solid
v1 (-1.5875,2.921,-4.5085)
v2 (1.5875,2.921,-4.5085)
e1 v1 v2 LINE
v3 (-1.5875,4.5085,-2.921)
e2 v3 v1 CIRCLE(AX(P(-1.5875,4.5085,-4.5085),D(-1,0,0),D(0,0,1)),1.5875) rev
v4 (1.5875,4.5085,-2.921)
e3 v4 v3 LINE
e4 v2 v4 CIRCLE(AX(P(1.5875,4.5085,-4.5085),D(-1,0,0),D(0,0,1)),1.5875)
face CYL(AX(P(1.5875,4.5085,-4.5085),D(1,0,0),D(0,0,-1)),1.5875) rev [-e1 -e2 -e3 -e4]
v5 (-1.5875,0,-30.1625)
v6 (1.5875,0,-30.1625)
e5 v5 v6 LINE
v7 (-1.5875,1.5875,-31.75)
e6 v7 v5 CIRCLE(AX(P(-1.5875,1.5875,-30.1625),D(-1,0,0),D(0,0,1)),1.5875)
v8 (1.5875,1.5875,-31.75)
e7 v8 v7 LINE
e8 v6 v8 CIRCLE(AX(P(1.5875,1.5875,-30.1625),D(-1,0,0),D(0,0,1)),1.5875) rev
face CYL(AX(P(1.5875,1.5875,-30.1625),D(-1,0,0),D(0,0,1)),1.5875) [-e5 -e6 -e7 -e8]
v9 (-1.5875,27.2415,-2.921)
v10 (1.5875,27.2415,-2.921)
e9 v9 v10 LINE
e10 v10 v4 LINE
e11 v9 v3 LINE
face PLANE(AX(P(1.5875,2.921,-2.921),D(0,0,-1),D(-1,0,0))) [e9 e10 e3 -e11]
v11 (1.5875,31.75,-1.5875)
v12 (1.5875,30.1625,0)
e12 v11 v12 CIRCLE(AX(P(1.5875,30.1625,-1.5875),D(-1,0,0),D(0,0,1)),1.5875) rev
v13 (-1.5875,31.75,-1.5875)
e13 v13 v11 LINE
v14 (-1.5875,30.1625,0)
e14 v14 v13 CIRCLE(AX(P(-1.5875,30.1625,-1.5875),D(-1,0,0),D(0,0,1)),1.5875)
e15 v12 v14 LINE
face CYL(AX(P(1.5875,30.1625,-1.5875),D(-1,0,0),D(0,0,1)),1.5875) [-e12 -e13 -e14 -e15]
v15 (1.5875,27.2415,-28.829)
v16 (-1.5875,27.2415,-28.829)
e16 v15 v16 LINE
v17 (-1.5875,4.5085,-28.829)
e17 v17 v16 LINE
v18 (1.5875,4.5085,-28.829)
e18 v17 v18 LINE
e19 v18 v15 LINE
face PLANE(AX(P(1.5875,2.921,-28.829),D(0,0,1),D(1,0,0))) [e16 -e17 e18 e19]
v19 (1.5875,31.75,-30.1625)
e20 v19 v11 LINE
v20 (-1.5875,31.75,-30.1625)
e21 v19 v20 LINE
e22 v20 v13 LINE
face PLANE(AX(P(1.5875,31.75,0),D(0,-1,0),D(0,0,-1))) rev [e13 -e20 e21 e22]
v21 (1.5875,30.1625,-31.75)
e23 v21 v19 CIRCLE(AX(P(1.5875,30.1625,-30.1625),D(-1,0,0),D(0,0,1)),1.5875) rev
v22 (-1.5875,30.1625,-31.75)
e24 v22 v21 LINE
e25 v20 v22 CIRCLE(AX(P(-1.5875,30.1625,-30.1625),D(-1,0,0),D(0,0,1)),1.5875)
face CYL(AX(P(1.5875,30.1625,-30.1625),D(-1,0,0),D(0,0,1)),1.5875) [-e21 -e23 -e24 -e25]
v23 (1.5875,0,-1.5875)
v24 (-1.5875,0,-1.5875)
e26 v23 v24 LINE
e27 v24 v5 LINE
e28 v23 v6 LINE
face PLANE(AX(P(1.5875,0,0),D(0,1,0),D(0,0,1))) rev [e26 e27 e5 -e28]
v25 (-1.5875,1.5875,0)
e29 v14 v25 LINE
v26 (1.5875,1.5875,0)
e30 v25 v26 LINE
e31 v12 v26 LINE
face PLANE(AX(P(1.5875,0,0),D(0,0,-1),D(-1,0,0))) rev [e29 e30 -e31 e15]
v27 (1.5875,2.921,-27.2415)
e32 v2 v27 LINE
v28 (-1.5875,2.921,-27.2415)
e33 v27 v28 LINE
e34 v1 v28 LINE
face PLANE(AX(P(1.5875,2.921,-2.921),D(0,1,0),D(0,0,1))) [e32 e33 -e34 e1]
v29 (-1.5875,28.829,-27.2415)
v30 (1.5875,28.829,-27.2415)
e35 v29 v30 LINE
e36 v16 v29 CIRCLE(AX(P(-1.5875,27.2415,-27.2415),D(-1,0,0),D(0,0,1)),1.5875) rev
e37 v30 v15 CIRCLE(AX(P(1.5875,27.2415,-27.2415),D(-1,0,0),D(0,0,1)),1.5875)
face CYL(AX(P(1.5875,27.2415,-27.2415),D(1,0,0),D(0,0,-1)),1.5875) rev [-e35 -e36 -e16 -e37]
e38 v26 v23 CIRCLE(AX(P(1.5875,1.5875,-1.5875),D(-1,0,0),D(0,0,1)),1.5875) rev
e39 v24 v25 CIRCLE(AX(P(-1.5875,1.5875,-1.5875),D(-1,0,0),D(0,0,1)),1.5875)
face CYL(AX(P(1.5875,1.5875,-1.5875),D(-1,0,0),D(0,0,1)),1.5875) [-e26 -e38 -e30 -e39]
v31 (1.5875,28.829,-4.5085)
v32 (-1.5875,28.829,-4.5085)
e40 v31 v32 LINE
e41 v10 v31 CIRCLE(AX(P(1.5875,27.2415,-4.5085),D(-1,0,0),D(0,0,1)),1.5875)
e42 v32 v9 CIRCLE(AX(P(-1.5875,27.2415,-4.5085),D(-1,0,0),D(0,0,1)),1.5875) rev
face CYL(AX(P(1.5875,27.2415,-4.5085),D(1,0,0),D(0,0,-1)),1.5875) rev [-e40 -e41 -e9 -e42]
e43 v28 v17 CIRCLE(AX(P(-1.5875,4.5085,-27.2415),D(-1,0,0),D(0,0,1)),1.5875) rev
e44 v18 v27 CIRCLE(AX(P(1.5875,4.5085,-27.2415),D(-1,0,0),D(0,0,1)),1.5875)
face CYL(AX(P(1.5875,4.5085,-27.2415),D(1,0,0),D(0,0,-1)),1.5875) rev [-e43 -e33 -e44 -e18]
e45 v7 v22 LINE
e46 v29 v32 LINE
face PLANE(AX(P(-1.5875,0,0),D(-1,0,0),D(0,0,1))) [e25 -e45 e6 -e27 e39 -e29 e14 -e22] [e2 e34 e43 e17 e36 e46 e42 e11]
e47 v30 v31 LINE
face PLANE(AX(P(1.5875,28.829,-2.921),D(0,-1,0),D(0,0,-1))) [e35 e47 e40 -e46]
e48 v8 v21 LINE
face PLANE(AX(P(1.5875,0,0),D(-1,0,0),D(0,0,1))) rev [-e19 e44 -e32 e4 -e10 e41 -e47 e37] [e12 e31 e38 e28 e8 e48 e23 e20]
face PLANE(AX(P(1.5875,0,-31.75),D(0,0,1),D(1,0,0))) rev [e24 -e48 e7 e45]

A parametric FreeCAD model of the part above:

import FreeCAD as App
import Part
import Sketcher

V = App.Vector
Q = App.Units.Quantity


def edges_at(feature, points):
    """Names of the edges that pass closest to the given points."""
    edges = feature.Shape.Edges
    near = lambda p: min(range(len(edges)), key=lambda i: edges[i].distToShape(Part.Vertex(*p))[0])
    return sorted({f"Edge{near(p) + 1}" for p in points})

doc = App.newDocument("Part")
params = doc.addObject("Spreadsheet::Sheet", "Params")
for row, (alias, value) in enumerate([
    ("sketch1_width", "1.25 in"),
    ("sketch1_width2", "1.02 in"),
    ("pad1_length", "0.125 in"),
    ("fillet_radius", "0.0625 in"),
], start=1):
    params.set(f"A{row}", alias)
    params.set(f"B{row}", "=" + value)
    params.setAlias(f"B{row}", alias)

body = doc.addObject("PartDesign::Body", "Body")

# Sketch on YZ plane
sketch1 = body.newObject("Sketcher::SketchObject", "Sketch")
sketch1.AttachmentSupport = (doc.getObject("YZ_Plane"), [""])
sketch1.MapMode = "FlatFace"
sketch1.addGeometry([
    Part.LineSegment(V(32, 0, 0), V(0, 0, 0)),  # 0
    Part.LineSegment(V(0, 0, 0), V(0, -32, 0)),  # 1
    Part.LineSegment(V(0, -32, 0), V(32, -32, 0)),  # 2
    Part.LineSegment(V(32, -32, 0), V(32, 0, 0)),  # 3
    Part.LineSegment(V(3, -29, 0), V(3, -3, 0)),  # 4
    Part.LineSegment(V(3, -3, 0), V(29, -3, 0)),  # 5
    Part.LineSegment(V(29, -3, 0), V(29, -29, 0)),  # 6
    Part.LineSegment(V(29, -29, 0), V(3, -29, 0)),  # 7
], False)
sketch1.addConstraint([
    Sketcher.Constraint("Coincident", 0, 2, 1, 1),
    Sketcher.Constraint("Coincident", 1, 2, 2, 1),
    Sketcher.Constraint("Coincident", 2, 2, 3, 1),
    Sketcher.Constraint("Coincident", 3, 2, 0, 1),
    Sketcher.Constraint("Coincident", 4, 2, 5, 1),
    Sketcher.Constraint("Coincident", 5, 2, 6, 1),
    Sketcher.Constraint("Coincident", 6, 2, 7, 1),
    Sketcher.Constraint("Coincident", 7, 2, 4, 1),
    Sketcher.Constraint("Horizontal", 0),
    Sketcher.Constraint("Vertical", 1),
    Sketcher.Constraint("Horizontal", 2),
    Sketcher.Constraint("Vertical", 3),
    Sketcher.Constraint("Vertical", 4),
    Sketcher.Constraint("Horizontal", 5),
    Sketcher.Constraint("Vertical", 6),
    Sketcher.Constraint("Horizontal", 7),
    Sketcher.Constraint("Coincident", 0, 2, -1, 1),
    Sketcher.Constraint("Equal", 2, 1),
    Sketcher.Constraint("Equal", 7, 4),
    Sketcher.Constraint("DistanceX", 0, 2, 0, 1, Q("1.25 in")),
    Sketcher.Constraint("DistanceX", 5, 1, 5, 2, Q("1.02 in")),
    Sketcher.Constraint("DistanceX", -1, 1, 4, 2, Q("0.115 in")),
    Sketcher.Constraint("DistanceY", 4, 2, -1, 1, Q("0.115 in")),
])
sketch1.setExpression("Constraints[19]", "Params.sketch1_width")
sketch1.setExpression("Constraints[20]", "Params.sketch1_width2")
pad1 = body.newObject("PartDesign::Pad", "Pad")
pad1.Profile = sketch1
pad1.setExpression("Length", "Params.pad1_length")
pad1.Midplane = True
doc.recompute()

fillet = body.newObject("PartDesign::Fillet", "Fillet")
fillet.Base = (pad1, edges_at(pad1, [
    (0, 2.921, -2.921),
    (0, 2.921, -28.829),
    (0, 28.829, -28.829),
    (0, 28.829, -2.921),
    (0, 31.75, 0),
    (0, 31.75, -31.75),
    (0, 0, -31.75),
    (0, 0, 0),
]))
fillet.setExpression("Radius", "Params.fillet_radius")

doc.recompute()
